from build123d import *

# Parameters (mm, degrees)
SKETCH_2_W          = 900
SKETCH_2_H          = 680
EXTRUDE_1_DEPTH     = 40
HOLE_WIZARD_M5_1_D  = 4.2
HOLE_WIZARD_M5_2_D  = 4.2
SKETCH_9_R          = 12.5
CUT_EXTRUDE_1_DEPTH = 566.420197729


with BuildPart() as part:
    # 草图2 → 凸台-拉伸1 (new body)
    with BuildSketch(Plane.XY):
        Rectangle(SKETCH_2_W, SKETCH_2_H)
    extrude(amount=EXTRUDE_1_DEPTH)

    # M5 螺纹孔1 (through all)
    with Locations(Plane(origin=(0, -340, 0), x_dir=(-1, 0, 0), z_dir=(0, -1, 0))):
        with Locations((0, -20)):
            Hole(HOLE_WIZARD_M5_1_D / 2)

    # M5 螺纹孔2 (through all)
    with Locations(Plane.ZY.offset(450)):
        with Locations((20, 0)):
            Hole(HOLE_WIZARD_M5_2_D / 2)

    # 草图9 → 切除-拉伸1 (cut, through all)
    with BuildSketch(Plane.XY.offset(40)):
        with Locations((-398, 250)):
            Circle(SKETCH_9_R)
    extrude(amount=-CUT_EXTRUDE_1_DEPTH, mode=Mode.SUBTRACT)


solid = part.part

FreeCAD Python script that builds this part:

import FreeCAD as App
import Part
import Sketcher

V = App.Vector
Q = App.Units.Quantity

doc = App.newDocument("Part")
body = doc.addObject("PartDesign::Body", "Body")

sketch1 = doc.addObject("Sketcher::SketchObject", "Sketch")
body.addObject(sketch1)
sketch1.AttachmentSupport = (doc.XY_Plane, [""])
sketch1.MapMode = "FlatFace"
sketch1.addGeometry(Part.LineSegment(V(-450, 340, 0), V(-450, -340, 0)), False)
sketch1.addGeometry(Part.LineSegment(V(-450, -340, 0), V(450, -340, 0)), False)
sketch1.addGeometry(Part.LineSegment(V(450, -340, 0), V(450, 340, 0)), False)
sketch1.addGeometry(Part.LineSegment(V(450, 340, 0), V(-450, 340, 0)), False)
sketch1.addConstraint(Sketcher.Constraint("Coincident", 0, 2, 1, 1))
sketch1.addConstraint(Sketcher.Constraint("Coincident", 1, 2, 2, 1))
sketch1.addConstraint(Sketcher.Constraint("Coincident", 2, 2, 3, 1))
sketch1.addConstraint(Sketcher.Constraint("Coincident", 3, 2, 0, 1))
sketch1.addConstraint(Sketcher.Constraint("Vertical", 0))
sketch1.addConstraint(Sketcher.Constraint("Horizontal", 1))
sketch1.addConstraint(Sketcher.Constraint("Vertical", 2))
sketch1.addConstraint(Sketcher.Constraint("Horizontal", 3))
sketch1.addConstraint(Sketcher.Constraint("Symmetric", 0, 2, 2, 2, -1, 1))
sketch1.addConstraint(Sketcher.Constraint("DistanceX", 1, 1, 1, 2, Q("900 mm")))
sketch1.addConstraint(Sketcher.Constraint("DistanceY", 0, 2, 0, 1, Q("680 mm")))
pad1 = doc.addObject("PartDesign::Pad", "Pad")
body.addObject(pad1)
pad1.Profile = sketch1
pad1.Length = 40

sketch2 = doc.addObject("Sketcher::SketchObject", "Sketch001")
body.addObject(sketch2)
sketch2.AttachmentSupport = (doc.XZ_Plane, [""])
sketch2.MapMode = "FlatFace"
sketch2.AttachmentOffset = App.Placement(V(0, 0, 340), App.Rotation())
sketch2.addGeometry(Part.Circle(V(0, 20, 0), V(0, 0, 1), 2.1), False)
sketch2.addConstraint(Sketcher.Constraint("PointOnObject", 0, 3, -2))
sketch2.addConstraint(Sketcher.Constraint("Diameter", 0, Q("4.2 mm")))
sketch2.addConstraint(Sketcher.Constraint("DistanceY", -1, 1, 0, 3, Q("20 mm")))
doc.recompute()
hole = doc.addObject("PartDesign::Hole", "Hole")
body.addObject(hole)
hole.Profile = sketch2
hole.ThreadType = "None"
hole.Diameter = 4.2
hole.DepthType = "ThroughAll"

sketch3 = doc.addObject("Sketcher::SketchObject", "Sketch002")
body.addObject(sketch3)
sketch3.AttachmentSupport = (doc.YZ_Plane, [""])
sketch3.MapMode = "FlatFace"
sketch3.AttachmentOffset = App.Placement(V(0, 0, -450), App.Rotation())
sketch3.addGeometry(Part.Circle(V(0, 20, 0), V(0, 0, 1), 2.1), False)
sketch3.addConstraint(Sketcher.Constraint("PointOnObject", 0, 3, -2))
sketch3.addConstraint(Sketcher.Constraint("Diameter", 0, Q("4.2 mm")))
sketch3.addConstraint(Sketcher.Constraint("DistanceY", -1, 1, 0, 3, Q("20 mm")))
doc.recompute()
hole2 = doc.addObject("PartDesign::Hole", "Hole001")
body.addObject(hole2)
hole2.Profile = sketch3
hole2.ThreadType = "None"
hole2.Diameter = 4.2
hole2.DepthType = "ThroughAll"
hole2.Reversed = True

sketch4 = doc.addObject("Sketcher::SketchObject", "Sketch003")
body.addObject(sketch4)
sketch4.AttachmentSupport = (doc.XY_Plane, [""])
sketch4.MapMode = "FlatFace"
sketch4.AttachmentOffset = App.Placement(V(0, 0, 40), App.Rotation())
sketch4.addGeometry(Part.Circle(V(-398, 250, 0), V(0, 0, 1), 12.5), False)
sketch4.addConstraint(Sketcher.Constraint("Diameter", 0, Q("25 mm")))
sketch4.addConstraint(Sketcher.Constraint("DistanceX", 0, 3, -1, 1, Q("398 mm")))
sketch4.addConstraint(Sketcher.Constraint("DistanceY", -1, 1, 0, 3, Q("250 mm")))
pocket1 = doc.addObject("PartDesign::Pocket", "Pocket")
body.addObject(pocket1)
pocket1.Profile = sketch4
pocket1.Type = "ThroughAll"

doc.recompute()
